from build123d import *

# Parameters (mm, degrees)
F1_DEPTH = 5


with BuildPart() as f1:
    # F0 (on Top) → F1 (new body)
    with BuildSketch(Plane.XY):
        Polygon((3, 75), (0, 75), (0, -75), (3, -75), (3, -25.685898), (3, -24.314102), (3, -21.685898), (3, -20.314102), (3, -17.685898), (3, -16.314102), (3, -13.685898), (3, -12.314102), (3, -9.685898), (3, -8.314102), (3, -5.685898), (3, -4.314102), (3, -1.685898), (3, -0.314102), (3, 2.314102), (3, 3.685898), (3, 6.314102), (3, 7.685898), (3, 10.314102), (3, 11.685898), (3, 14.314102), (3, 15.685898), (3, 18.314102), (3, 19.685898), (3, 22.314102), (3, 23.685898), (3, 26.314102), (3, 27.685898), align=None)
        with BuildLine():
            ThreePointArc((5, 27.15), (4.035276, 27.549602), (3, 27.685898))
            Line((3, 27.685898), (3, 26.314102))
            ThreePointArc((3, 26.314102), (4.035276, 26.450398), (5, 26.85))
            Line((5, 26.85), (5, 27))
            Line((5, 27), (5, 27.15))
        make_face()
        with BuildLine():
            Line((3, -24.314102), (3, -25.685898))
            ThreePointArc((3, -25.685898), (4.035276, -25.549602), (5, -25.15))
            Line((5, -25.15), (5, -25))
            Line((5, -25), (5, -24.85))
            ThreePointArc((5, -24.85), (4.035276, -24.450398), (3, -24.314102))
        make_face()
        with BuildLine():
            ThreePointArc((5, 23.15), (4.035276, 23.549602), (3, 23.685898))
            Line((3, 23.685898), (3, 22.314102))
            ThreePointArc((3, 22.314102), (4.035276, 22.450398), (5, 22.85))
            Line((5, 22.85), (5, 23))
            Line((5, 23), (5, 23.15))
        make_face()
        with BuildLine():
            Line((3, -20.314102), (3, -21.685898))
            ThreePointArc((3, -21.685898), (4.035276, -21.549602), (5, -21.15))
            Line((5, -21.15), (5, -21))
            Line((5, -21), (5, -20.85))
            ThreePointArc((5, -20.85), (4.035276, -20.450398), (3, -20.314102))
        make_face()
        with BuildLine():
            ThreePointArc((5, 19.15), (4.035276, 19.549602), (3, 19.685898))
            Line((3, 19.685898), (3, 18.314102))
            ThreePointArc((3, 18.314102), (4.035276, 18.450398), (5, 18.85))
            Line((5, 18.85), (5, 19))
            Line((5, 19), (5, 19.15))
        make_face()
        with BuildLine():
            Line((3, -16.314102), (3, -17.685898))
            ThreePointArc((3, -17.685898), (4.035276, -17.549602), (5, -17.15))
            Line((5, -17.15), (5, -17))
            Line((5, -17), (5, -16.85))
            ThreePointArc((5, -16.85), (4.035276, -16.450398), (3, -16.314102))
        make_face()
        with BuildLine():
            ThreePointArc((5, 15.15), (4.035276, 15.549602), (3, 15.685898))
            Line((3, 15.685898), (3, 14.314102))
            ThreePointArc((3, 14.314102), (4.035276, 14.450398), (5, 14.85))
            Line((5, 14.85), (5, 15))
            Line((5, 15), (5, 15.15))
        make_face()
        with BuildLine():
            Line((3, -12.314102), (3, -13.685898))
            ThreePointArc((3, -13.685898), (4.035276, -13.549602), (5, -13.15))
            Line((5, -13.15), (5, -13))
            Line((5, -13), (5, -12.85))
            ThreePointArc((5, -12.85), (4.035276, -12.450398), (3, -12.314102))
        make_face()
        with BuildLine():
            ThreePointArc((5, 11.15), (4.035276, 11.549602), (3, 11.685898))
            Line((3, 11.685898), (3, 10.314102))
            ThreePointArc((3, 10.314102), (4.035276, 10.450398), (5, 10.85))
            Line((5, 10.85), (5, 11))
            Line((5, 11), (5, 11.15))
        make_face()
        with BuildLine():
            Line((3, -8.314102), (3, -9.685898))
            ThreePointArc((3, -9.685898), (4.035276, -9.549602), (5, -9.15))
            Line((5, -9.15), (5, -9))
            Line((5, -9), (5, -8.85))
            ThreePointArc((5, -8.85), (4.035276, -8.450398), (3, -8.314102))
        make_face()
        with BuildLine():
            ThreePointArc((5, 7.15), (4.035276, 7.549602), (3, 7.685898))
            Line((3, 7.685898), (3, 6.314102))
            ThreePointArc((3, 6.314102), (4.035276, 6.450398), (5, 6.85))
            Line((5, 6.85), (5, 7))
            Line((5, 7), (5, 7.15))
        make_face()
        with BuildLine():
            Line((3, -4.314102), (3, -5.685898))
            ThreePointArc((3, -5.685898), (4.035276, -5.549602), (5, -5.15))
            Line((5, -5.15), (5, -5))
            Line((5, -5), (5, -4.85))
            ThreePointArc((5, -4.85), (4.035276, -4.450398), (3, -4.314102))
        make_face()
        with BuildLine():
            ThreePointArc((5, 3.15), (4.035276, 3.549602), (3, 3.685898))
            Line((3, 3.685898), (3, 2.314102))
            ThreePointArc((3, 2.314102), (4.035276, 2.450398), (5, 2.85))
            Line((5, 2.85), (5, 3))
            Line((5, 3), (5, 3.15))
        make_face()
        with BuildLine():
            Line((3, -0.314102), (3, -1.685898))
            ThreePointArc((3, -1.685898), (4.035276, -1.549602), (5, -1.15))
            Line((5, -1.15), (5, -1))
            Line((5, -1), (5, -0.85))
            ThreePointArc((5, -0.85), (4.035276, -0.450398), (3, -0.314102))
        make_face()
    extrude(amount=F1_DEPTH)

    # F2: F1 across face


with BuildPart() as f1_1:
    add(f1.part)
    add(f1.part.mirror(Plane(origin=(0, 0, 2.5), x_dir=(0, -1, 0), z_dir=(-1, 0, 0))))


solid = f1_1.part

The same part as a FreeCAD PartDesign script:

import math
import FreeCAD as App
import Part
import Sketcher

V = App.Vector

doc = App.newDocument("Part")
body = doc.addObject("PartDesign::Body", "Body")

sketch1 = body.newObject("Sketcher::SketchObject", "Sketch")
sketch1.AttachmentSupport = (doc.getObject("XY_Plane"), [""])
sketch1.MapMode = "FlatFace"
sketch1.addGeometry(Part.LineSegment(V(3, 75, 0), V(0, 75, 0)), False)
sketch1.addGeometry(Part.LineSegment(V(0, 75, 0), V(0, -75, 0)), False)
sketch1.addGeometry(Part.LineSegment(V(0, -75, 0), V(3, -75, 0)), False)
sketch1.addGeometry(Part.LineSegment(V(3, -75, 0), V(3, -25.685898, 0)), False)
sketch1.addGeometry(Part.ArcOfCircle(Part.Circle(V(3.000004, -21.685911, 0), V(0, 0, 1), 3.999987), math.radians(-90.000059), math.radians(-59.999962)), False)
sketch1.addGeometry(Part.LineSegment(V(5, -25.15, 0), V(5, -24.85, 0)), False)
sketch1.addGeometry(Part.ArcOfCircle(Part.Circle(V(3.000004, -28.314089, 0), V(0, 0, 1), 3.999987), math.radians(59.999962), math.radians(90.000059)), False)
sketch1.addGeometry(Part.LineSegment(V(3, -24.314102, 0), V(3, -21.685898, 0)), False)
sketch1.addGeometry(Part.ArcOfCircle(Part.Circle(V(3.000004, -17.685911, 0), V(0, 0, 1), 3.999987), math.radians(-90.000059), math.radians(-59.999962)), False)
sketch1.addGeometry(Part.LineSegment(V(5, -21.15, 0), V(5, -20.85, 0)), False)
sketch1.addGeometry(Part.ArcOfCircle(Part.Circle(V(3.000004, -24.314089, 0), V(0, 0, 1), 3.999987), math.radians(59.999962), math.radians(90.000059)), False)
sketch1.addGeometry(Part.LineSegment(V(3, -20.314102, 0), V(3, -17.685898, 0)), False)
sketch1.addGeometry(Part.ArcOfCircle(Part.Circle(V(3.000004, -13.685911, 0), V(0, 0, 1), 3.999987), math.radians(-90.000059), math.radians(-59.999962)), False)
sketch1.addGeometry(Part.LineSegment(V(5, -17.15, 0), V(5, -16.85, 0)), False)
sketch1.addGeometry(Part.ArcOfCircle(Part.Circle(V(3.000004, -20.314089, 0), V(0, 0, 1), 3.999987), math.radians(59.999962), math.radians(90.000059)), False)
sketch1.addGeometry(Part.LineSegment(V(3, -16.314102, 0), V(3, -13.685898, 0)), False)
sketch1.addGeometry(Part.ArcOfCircle(Part.Circle(V(3.000004, -9.685911, 0), V(0, 0, 1), 3.999987), math.radians(-90.000059), math.radians(-59.999962)), False)
sketch1.addGeometry(Part.LineSegment(V(5, -13.15, 0), V(5, -12.85, 0)), False)
sketch1.addGeometry(Part.ArcOfCircle(Part.Circle(V(3.000004, -16.314089, 0), V(0, 0, 1), 3.999987), math.radians(59.999962), math.radians(90.000059)), False)
sketch1.addGeometry(Part.LineSegment(V(3, -12.314102, 0), V(3, -9.685898, 0)), False)
sketch1.addGeometry(Part.ArcOfCircle(Part.Circle(V(3.000004, -5.685911, 0), V(0, 0, 1), 3.999987), math.radians(-90.000059), math.radians(-59.999962)), False)
sketch1.addGeometry(Part.LineSegment(V(5, -9.15, 0), V(5, -8.85, 0)), False)
sketch1.addGeometry(Part.ArcOfCircle(Part.Circle(V(3.000004, -12.314089, 0), V(0, 0, 1), 3.999987), math.radians(59.999962), math.radians(90.000059)), False)
sketch1.addGeometry(Part.LineSegment(V(3, -8.314102, 0), V(3, -5.685898, 0)), False)
sketch1.addGeometry(Part.ArcOfCircle(Part.Circle(V(3.000004, -1.685911, 0), V(0, 0, 1), 3.999987), math.radians(-90.000059), math.radians(-59.999962)), False)
sketch1.addGeometry(Part.LineSegment(V(5, -5.15, 0), V(5, -4.85, 0)), False)
sketch1.addGeometry(Part.ArcOfCircle(Part.Circle(V(3.000004, -8.314089, 0), V(0, 0, 1), 3.999987), math.radians(59.999962), math.radians(90.000059)), False)
sketch1.addGeometry(Part.LineSegment(V(3, -4.314102, 0), V(3, -1.685898, 0)), False)
sketch1.addGeometry(Part.ArcOfCircle(Part.Circle(V(3.000004, 2.314089, 0), V(0, 0, 1), 3.999987), math.radians(-90.000059), math.radians(-59.999962)), False)
sketch1.addGeometry(Part.LineSegment(V(5, -1.15, 0), V(5, -0.85, 0)), False)
sketch1.addGeometry(Part.ArcOfCircle(Part.Circle(V(3.000004, -4.314089, 0), V(0, 0, 1), 3.999987), math.radians(59.999962), math.radians(90.000059)), False)
sketch1.addGeometry(Part.LineSegment(V(3, -0.314102, 0), V(3, 2.314102, 0)), False)
sketch1.addGeometry(Part.ArcOfCircle(Part.Circle(V(3.000004, 6.314089, 0), V(0, 0, 1), 3.999987), math.radians(-90.000059), math.radians(-59.999962)), False)
sketch1.addGeometry(Part.LineSegment(V(5, 2.85, 0), V(5, 3.15, 0)), False)
sketch1.addGeometry(Part.ArcOfCircle(Part.Circle(V(3.000004, -0.314089, 0), V(0, 0, 1), 3.999987), math.radians(59.999962), math.radians(90.000059)), False)
sketch1.addGeometry(Part.LineSegment(V(3, 3.685898, 0), V(3, 6.314102, 0)), False)
sketch1.addGeometry(Part.ArcOfCircle(Part.Circle(V(3.000004, 10.314089, 0), V(0, 0, 1), 3.999987), math.radians(-90.000059), math.radians(-59.999962)), False)
sketch1.addGeometry(Part.LineSegment(V(5, 6.85, 0), V(5, 7.15, 0)), False)
sketch1.addGeometry(Part.ArcOfCircle(Part.Circle(V(3.000004, 3.685911, 0), V(0, 0, 1), 3.999987), math.radians(59.999962), math.radians(90.000059)), False)
sketch1.addGeometry(Part.LineSegment(V(3, 7.685898, 0), V(3, 10.314102, 0)), False)
sketch1.addGeometry(Part.ArcOfCircle(Part.Circle(V(3.000004, 14.314089, 0), V(0, 0, 1), 3.999987), math.radians(-90.000059), math.radians(-59.999962)), False)
sketch1.addGeometry(Part.LineSegment(V(5, 10.85, 0), V(5, 11.15, 0)), False)
sketch1.addGeometry(Part.ArcOfCircle(Part.Circle(V(3.000004, 7.685911, 0), V(0, 0, 1), 3.999987), math.radians(59.999962), math.radians(90.000059)), False)
sketch1.addGeometry(Part.LineSegment(V(3, 11.685898, 0), V(3, 14.314102, 0)), False)
sketch1.addGeometry(Part.ArcOfCircle(Part.Circle(V(3.000004, 18.314089, 0), V(0, 0, 1), 3.999987), math.radians(-90.000059), math.radians(-59.999962)), False)
sketch1.addGeometry(Part.LineSegment(V(5, 14.85, 0), V(5, 15.15, 0)), False)
sketch1.addGeometry(Part.ArcOfCircle(Part.Circle(V(3.000004, 11.685911, 0), V(0, 0, 1), 3.999987), math.radians(59.999962), math.radians(90.000059)), False)
sketch1.addGeometry(Part.LineSegment(V(3, 15.685898, 0), V(3, 18.314102, 0)), False)
sketch1.addGeometry(Part.ArcOfCircle(Part.Circle(V(3.000004, 22.314089, 0), V(0, 0, 1), 3.999987), math.radians(-90.000059), math.radians(-59.999962)), False)
sketch1.addGeometry(Part.LineSegment(V(5, 18.85, 0), V(5, 19.15, 0)), False)
sketch1.addGeometry(Part.ArcOfCircle(Part.Circle(V(3.000004, 15.685911, 0), V(0, 0, 1), 3.999987), math.radians(59.999962), math.radians(90.000059)), False)
sketch1.addGeometry(Part.LineSegment(V(3, 19.685898, 0), V(3, 22.314102, 0)), False)
sketch1.addGeometry(Part.ArcOfCircle(Part.Circle(V(3.000004, 26.314089, 0), V(0, 0, 1), 3.999987), math.radians(-90.000059), math.radians(-59.999962)), False)
sketch1.addGeometry(Part.LineSegment(V(5, 22.85, 0), V(5, 23.15, 0)), False)
sketch1.addGeometry(Part.ArcOfCircle(Part.Circle(V(3.000004, 19.685911, 0), V(0, 0, 1), 3.999987), math.radians(59.999962), math.radians(90.000059)), False)
sketch1.addGeometry(Part.LineSegment(V(3, 23.685898, 0), V(3, 26.314102, 0)), False)
sketch1.addGeometry(Part.ArcOfCircle(Part.Circle(V(3.000004, 30.314089, 0), V(0, 0, 1), 3.999987), math.radians(-90.000059), math.radians(-59.999962)), False)
sketch1.addGeometry(Part.LineSegment(V(5, 26.85, 0), V(5, 27.15, 0)), False)
sketch1.addGeometry(Part.ArcOfCircle(Part.Circle(V(3.000004, 23.685911, 0), V(0, 0, 1), 3.999987), math.radians(59.999962), math.radians(90.000059)), False)
sketch1.addGeometry(Part.LineSegment(V(3, 27.685898, 0), V(3, 75, 0)), False)
sketch1.addConstraint(Sketcher.Constraint("Coincident", 0, 2, 1, 1))
sketch1.addConstraint(Sketcher.Constraint("Coincident", 1, 2, 2, 1))
sketch1.addConstraint(Sketcher.Constraint("Coincident", 2, 2, 3, 1))
sketch1.addConstraint(Sketcher.Constraint("Coincident", 3, 2, 4, 1))
sketch1.addConstraint(Sketcher.Constraint("Coincident", 4, 2, 5, 1))
sketch1.addConstraint(Sketcher.Constraint("Coincident", 5, 2, 6, 1))
sketch1.addConstraint(Sketcher.Constraint("Coincident", 6, 2, 7, 1))
sketch1.addConstraint(Sketcher.Constraint("Coincident", 7, 2, 8, 1))
sketch1.addConstraint(Sketcher.Constraint("Coincident", 8, 2, 9, 1))
sketch1.addConstraint(Sketcher.Constraint("Coincident", 9, 2, 10, 1))
sketch1.addConstraint(Sketcher.Constraint("Coincident", 10, 2, 11, 1))
sketch1.addConstraint(Sketcher.Constraint("Coincident", 11, 2, 12, 1))
sketch1.addConstraint(Sketcher.Constraint("Coincident", 12, 2, 13, 1))
sketch1.addConstraint(Sketcher.Constraint("Coincident", 13, 2, 14, 1))
sketch1.addConstraint(Sketcher.Constraint("Coincident", 14, 2, 15, 1))
sketch1.addConstraint(Sketcher.Constraint("Coincident", 15, 2, 16, 1))
sketch1.addConstraint(Sketcher.Constraint("Coincident", 16, 2, 17, 1))
sketch1.addConstraint(Sketcher.Constraint("Coincident", 17, 2, 18, 1))
sketch1.addConstraint(Sketcher.Constraint("Coincident", 18, 2, 19, 1))
sketch1.addConstraint(Sketcher.Constraint("Coincident", 19, 2, 20, 1))
sketch1.addConstraint(Sketcher.Constraint("Coincident", 20, 2, 21, 1))
sketch1.addConstraint(Sketcher.Constraint("Coincident", 21, 2, 22, 1))
sketch1.addConstraint(Sketcher.Constraint("Coincident", 22, 2, 23, 1))
sketch1.addConstraint(Sketcher.Constraint("Coincident", 23, 2, 24, 1))
sketch1.addConstraint(Sketcher.Constraint("Coincident", 24, 2, 25, 1))
sketch1.addConstraint(Sketcher.Constraint("Coincident", 25, 2, 26, 1))
sketch1.addConstraint(Sketcher.Constraint("Coincident", 26, 2, 27, 1))
sketch1.addConstraint(Sketcher.Constraint("Coincident", 27, 2, 28, 1))
sketch1.addConstraint(Sketcher.Constraint("Coincident", 28, 2, 29, 1))
sketch1.addConstraint(Sketcher.Constraint("Coincident", 29, 2, 30, 1))
sketch1.addConstraint(Sketcher.Constraint("Coincident", 30, 2, 31, 1))
sketch1.addConstraint(Sketcher.Constraint("Coincident", 31, 2, 32, 1))
sketch1.addConstraint(Sketcher.Constraint("Coincident", 32, 2, 33, 1))
sketch1.addConstraint(Sketcher.Constraint("Coincident", 33, 2, 34, 1))
sketch1.addConstraint(Sketcher.Constraint("Coincident", 34, 2, 35, 1))
sketch1.addConstraint(Sketcher.Constraint("Coincident", 35, 2, 36, 1))
sketch1.addConstraint(Sketcher.Constraint("Coincident", 36, 2, 37, 1))
sketch1.addConstraint(Sketcher.Constraint("Coincident", 37, 2, 38, 1))
sketch1.addConstraint(Sketcher.Constraint("Coincident", 38, 2, 39, 1))
sketch1.addConstraint(Sketcher.Constraint("Coincident", 39, 2, 40, 1))
sketch1.addConstraint(Sketcher.Constraint("Coincident", 40, 2, 41, 1))
sketch1.addConstraint(Sketcher.Constraint("Coincident", 41, 2, 42, 1))
sketch1.addConstraint(Sketcher.Constraint("Coincident", 42, 2, 43, 1))
sketch1.addConstraint(Sketcher.Constraint("Coincident", 43, 2, 44, 1))
sketch1.addConstraint(Sketcher.Constraint("Coincident", 44, 2, 45, 1))
sketch1.addConstraint(Sketcher.Constraint("Coincident", 45, 2, 46, 1))
sketch1.addConstraint(Sketcher.Constraint("Coincident", 46, 2, 47, 1))
sketch1.addConstraint(Sketcher.Constraint("Coincident", 47, 2, 48, 1))
sketch1.addConstraint(Sketcher.Constraint("Coincident", 48, 2, 49, 1))
sketch1.addConstraint(Sketcher.Constraint("Coincident", 49, 2, 50, 1))
sketch1.addConstraint(Sketcher.Constraint("Coincident", 50, 2, 51, 1))
sketch1.addConstraint(Sketcher.Constraint("Coincident", 51, 2, 52, 1))
sketch1.addConstraint(Sketcher.Constraint("Coincident", 52, 2, 53, 1))
sketch1.addConstraint(Sketcher.Constraint("Coincident", 53, 2, 54, 1))
sketch1.addConstraint(Sketcher.Constraint("Coincident", 54, 2, 55, 1))
sketch1.addConstraint(Sketcher.Constraint("Coincident", 55, 2, 56, 1))
sketch1.addConstraint(Sketcher.Constraint("Coincident", 56, 2, 57, 1))
sketch1.addConstraint(Sketcher.Constraint("Coincident", 57, 2, 58, 1))
sketch1.addConstraint(Sketcher.Constraint("Coincident", 58, 2, 59, 1))
sketch1.addConstraint(Sketcher.Constraint("Coincident", 59, 2, 0, 1))
sketch1.addConstraint(Sketcher.Constraint("Horizontal", 0))
sketch1.addConstraint(Sketcher.Constraint("Vertical", 1))
sketch1.addConstraint(Sketcher.Constraint("Horizontal", 2))
sketch1.addConstraint(Sketcher.Constraint("Vertical", 3))
sketch1.addConstraint(Sketcher.Constraint("Vertical", 5))
sketch1.addConstraint(Sketcher.Constraint("Vertical", 7))
sketch1.addConstraint(Sketcher.Constraint("Vertical", 9))
sketch1.addConstraint(Sketcher.Constraint("Vertical", 11))
sketch1.addConstraint(Sketcher.Constraint("Vertical", 13))
sketch1.addConstraint(Sketcher.Constraint("Vertical", 15))
sketch1.addConstraint(Sketcher.Constraint("Vertical", 17))
sketch1.addConstraint(Sketcher.Constraint("Vertical", 19))
sketch1.addConstraint(Sketcher.Constraint("Vertical", 21))
sketch1.addConstraint(Sketcher.Constraint("Vertical", 23))
sketch1.addConstraint(Sketcher.Constraint("Vertical", 25))
sketch1.addConstraint(Sketcher.Constraint("Vertical", 27))
sketch1.addConstraint(Sketcher.Constraint("Vertical", 29))
sketch1.addConstraint(Sketcher.Constraint("Vertical", 31))
sketch1.addConstraint(Sketcher.Constraint("Vertical", 33))
sketch1.addConstraint(Sketcher.Constraint("Vertical", 35))
sketch1.addConstraint(Sketcher.Constraint("Vertical", 37))
sketch1.addConstraint(Sketcher.Constraint("Vertical", 39))
sketch1.addConstraint(Sketcher.Constraint("Vertical", 41))
sketch1.addConstraint(Sketcher.Constraint("Vertical", 43))
sketch1.addConstraint(Sketcher.Constraint("Vertical", 45))
sketch1.addConstraint(Sketcher.Constraint("Vertical", 47))
sketch1.addConstraint(Sketcher.Constraint("Vertical", 49))
sketch1.addConstraint(Sketcher.Constraint("Vertical", 51))
sketch1.addConstraint(Sketcher.Constraint("Vertical", 53))
sketch1.addConstraint(Sketcher.Constraint("Vertical", 55))
sketch1.addConstraint(Sketcher.Constraint("Vertical", 57))
sketch1.addConstraint(Sketcher.Constraint("Vertical", 59))
sketch1.addConstraint(Sketcher.Constraint("Equal", 4, 6))
sketch1.addConstraint(Sketcher.Constraint("Equal", 6, 8))
sketch1.addConstraint(Sketcher.Constraint("Equal", 8, 10))
sketch1.addConstraint(Sketcher.Constraint("Equal", 10, 12))
sketch1.addConstraint(Sketcher.Constraint("Equal", 12, 14))
sketch1.addConstraint(Sketcher.Constraint("Equal", 14, 16))
sketch1.addConstraint(Sketcher.Constraint("Equal", 16, 18))
sketch1.addConstraint(Sketcher.Constraint("Equal", 18, 20))
sketch1.addConstraint(Sketcher.Constraint("Equal", 20, 22))
sketch1.addConstraint(Sketcher.Constraint("Equal", 22, 24))
sketch1.addConstraint(Sketcher.Constraint("Equal", 24, 26))
sketch1.addConstraint(Sketcher.Constraint("Equal", 26, 28))
sketch1.addConstraint(Sketcher.Constraint("Equal", 28, 30))
sketch1.addConstraint(Sketcher.Constraint("Equal", 30, 32))
sketch1.addConstraint(Sketcher.Constraint("Equal", 32, 34))
sketch1.addConstraint(Sketcher.Constraint("Equal", 34, 36))
sketch1.addConstraint(Sketcher.Constraint("Equal", 36, 38))
sketch1.addConstraint(Sketcher.Constraint("Equal", 38, 40))
sketch1.addConstraint(Sketcher.Constraint("Equal", 40, 42))
sketch1.addConstraint(Sketcher.Constraint("Equal", 42, 44))
sketch1.addConstraint(Sketcher.Constraint("Equal", 44, 46))
sketch1.addConstraint(Sketcher.Constraint("Equal", 46, 48))
sketch1.addConstraint(Sketcher.Constraint("Equal", 48, 50))
sketch1.addConstraint(Sketcher.Constraint("Equal", 50, 52))
sketch1.addConstraint(Sketcher.Constraint("Equal", 52, 54))
sketch1.addConstraint(Sketcher.Constraint("Equal", 54, 56))
sketch1.addConstraint(Sketcher.Constraint("Equal", 56, 58))
sketch1.addConstraint(Sketcher.Constraint("Symmetric", 0, 2, 1, 2, -1, 1))
sketch1.addConstraint(Sketcher.Constraint("Vertical", 4, 3, 6, 3))
sketch1.addConstraint(Sketcher.Constraint("Vertical", 6, 3, 8, 3))
sketch1.addConstraint(Sketcher.Constraint("Vertical", 8, 3, 10, 3))
sketch1.addConstraint(Sketcher.Constraint("Vertical", 10, 3, 12, 3))
sketch1.addConstraint(Sketcher.Constraint("Vertical", 12, 3, 14, 3))
sketch1.addConstraint(Sketcher.Constraint("Vertical", 14, 3, 16, 3))
sketch1.addConstraint(Sketcher.Constraint("Vertical", 16, 3, 18, 3))
sketch1.addConstraint(Sketcher.Constraint("Vertical", 18, 3, 20, 3))
sketch1.addConstraint(Sketcher.Constraint("Vertical", 20, 3, 22, 3))
sketch1.addConstraint(Sketcher.Constraint("Vertical", 22, 3, 24, 3))
sketch1.addConstraint(Sketcher.Constraint("Vertical", 24, 3, 26, 3))
sketch1.addConstraint(Sketcher.Constraint("Vertical", 26, 3, 28, 3))
sketch1.addConstraint(Sketcher.Constraint("Vertical", 28, 3, 30, 3))
sketch1.addConstraint(Sketcher.Constraint("Vertical", 30, 3, 32, 3))
sketch1.addConstraint(Sketcher.Constraint("Vertical", 32, 3, 34, 3))
sketch1.addConstraint(Sketcher.Constraint("Vertical", 34, 3, 36, 3))
sketch1.addConstraint(Sketcher.Constraint("Vertical", 36, 3, 38, 3))
sketch1.addConstraint(Sketcher.Constraint("Vertical", 38, 3, 40, 3))
sketch1.addConstraint(Sketcher.Constraint("Vertical", 40, 3, 42, 3))
sketch1.addConstraint(Sketcher.Constraint("Vertical", 42, 3, 44, 3))
sketch1.addConstraint(Sketcher.Constraint("Vertical", 44, 3, 46, 3))
sketch1.addConstraint(Sketcher.Constraint("Vertical", 46, 3, 48, 3))
sketch1.addConstraint(Sketcher.Constraint("Vertical", 48, 3, 50, 3))
sketch1.addConstraint(Sketcher.Constraint("Vertical", 50, 3, 52, 3))
sketch1.addConstraint(Sketcher.Constraint("Vertical", 52, 3, 54, 3))
sketch1.addConstraint(Sketcher.Constraint("Vertical", 54, 3, 56, 3))
sketch1.addConstraint(Sketcher.Constraint("Vertical", 56, 3, 58, 3))
sketch1.addConstraint(Sketcher.Constraint("Vertical", 3, 2, 6, 2))
sketch1.addConstraint(Sketcher.Constraint("Vertical", 5, 2, 8, 2))
sketch1.addConstraint(Sketcher.Constraint("Vertical", 7, 2, 10, 2))
sketch1.addConstraint(Sketcher.Constraint("Vertical", 9, 2, 12, 2))
sketch1.addConstraint(Sketcher.Constraint("Vertical", 11, 2, 14, 2))
sketch1.addConstraint(Sketcher.Constraint("Vertical", 13, 2, 16, 2))
sketch1.addConstraint(Sketcher.Constraint("Vertical", 15, 2, 18, 2))
sketch1.addConstraint(Sketcher.Constraint("Vertical", 17, 2, 20, 2))
sketch1.addConstraint(Sketcher.Constraint("Vertical", 19, 2, 22, 2))
sketch1.addConstraint(Sketcher.Constraint("Vertical", 21, 2, 24, 2))
sketch1.addConstraint(Sketcher.Constraint("Vertical", 23, 2, 26, 2))
sketch1.addConstraint(Sketcher.Constraint("Vertical", 25, 2, 28, 2))
sketch1.addConstraint(Sketcher.Constraint("Vertical", 27, 2, 30, 2))
sketch1.addConstraint(Sketcher.Constraint("Vertical", 29, 2, 32, 2))
sketch1.addConstraint(Sketcher.Constraint("Vertical", 31, 2, 34, 2))
sketch1.addConstraint(Sketcher.Constraint("Vertical", 33, 2, 36, 2))
sketch1.addConstraint(Sketcher.Constraint("Vertical", 35, 2, 38, 2))
sketch1.addConstraint(Sketcher.Constraint("Vertical", 37, 2, 40, 2))
sketch1.addConstraint(Sketcher.Constraint("Vertical", 39, 2, 42, 2))
sketch1.addConstraint(Sketcher.Constraint("Vertical", 41, 2, 44, 2))
sketch1.addConstraint(Sketcher.Constraint("Vertical", 43, 2, 46, 2))
sketch1.addConstraint(Sketcher.Constraint("Vertical", 45, 2, 48, 2))
sketch1.addConstraint(Sketcher.Constraint("Vertical", 47, 2, 50, 2))
sketch1.addConstraint(Sketcher.Constraint("Vertical", 49, 2, 52, 2))
sketch1.addConstraint(Sketcher.Constraint("Vertical", 51, 2, 54, 2))
sketch1.addConstraint(Sketcher.Constraint("Vertical", 53, 2, 56, 2))
sketch1.addConstraint(Sketcher.Constraint("Vertical", 55, 2, 58, 2))
sketch1.addConstraint(Sketcher.Constraint("Equal", 5, 9))
sketch1.addConstraint(Sketcher.Constraint("Equal", 7, 11))
sketch1.addConstraint(Sketcher.Constraint("Equal", 9, 13))
sketch1.addConstraint(Sketcher.Constraint("Equal", 11, 15))
sketch1.addConstraint(Sketcher.Constraint("Equal", 13, 17))
sketch1.addConstraint(Sketcher.Constraint("Equal", 15, 19))
sketch1.addConstraint(Sketcher.Constraint("Equal", 17, 21))
sketch1.addConstraint(Sketcher.Constraint("Equal", 19, 23))
sketch1.addConstraint(Sketcher.Constraint("Equal", 21, 25))
sketch1.addConstraint(Sketcher.Constraint("Equal", 23, 27))
sketch1.addConstraint(Sketcher.Constraint("Equal", 25, 29))
sketch1.addConstraint(Sketcher.Constraint("Equal", 27, 31))
sketch1.addConstraint(Sketcher.Constraint("Equal", 29, 33))
sketch1.addConstraint(Sketcher.Constraint("Equal", 31, 35))
sketch1.addConstraint(Sketcher.Constraint("Equal", 33, 37))
sketch1.addConstraint(Sketcher.Constraint("Equal", 35, 39))
sketch1.addConstraint(Sketcher.Constraint("Equal", 37, 41))
sketch1.addConstraint(Sketcher.Constraint("Equal", 39, 43))
sketch1.addConstraint(Sketcher.Constraint("Equal", 41, 45))
sketch1.addConstraint(Sketcher.Constraint("Equal", 43, 47))
sketch1.addConstraint(Sketcher.Constraint("Equal", 45, 49))
sketch1.addConstraint(Sketcher.Constraint("Equal", 47, 51))
sketch1.addConstraint(Sketcher.Constraint("Equal", 49, 53))
sketch1.addConstraint(Sketcher.Constraint("Equal", 51, 55))
sketch1.addConstraint(Sketcher.Constraint("Equal", 53, 57))
sketch1.addConstraint(Sketcher.Constraint("DistanceX", 0, 2, 0, 1, 3.0))
sketch1.addConstraint(Sketcher.Constraint("DistanceY", 1, 2, 1, 1, 150.0))
sketch1.addConstraint(Sketcher.Constraint("DistanceY", 5, 1, 5, 2, 0.3))
sketch1.addConstraint(Sketcher.Constraint("DistanceX", -1, 1, 4, 2, 5.0))
sketch1.addConstraint(Sketcher.Constraint("DistanceY", 4, 2, -1, 1, 25.15))
sketch1.addConstraint(Sketcher.Constraint("DistanceY", 8, 2, -1, 1, 21.15))
sketch1.addConstraint(Sketcher.Constraint("DistanceY", 3, 1, 3, 2, 49.314102))
sketch1.addConstraint(Sketcher.Constraint("Radius", 4, 3.999987))
pad1 = body.newObject("PartDesign::Pad", "Pad")
pad1.Profile = sketch1
pad1.Length = 5
body2 = doc.addObject("PartDesign::Body", "Body001")
doc.recompute()

body2.BaseFeature = body
doc.recompute()

mirroring = doc.addObject("Part::Mirroring", "Mirroring")
mirroring.Source = body
mirroring.Base = V(0, 0, 2.5)
mirroring.Normal = V(-1, 0, 0)
body3 = doc.addObject("PartDesign::Body", "Body002")
body3.BaseFeature = mirroring
boolean = body2.newObject("PartDesign::Boolean", "Boolean")
boolean.Type = "Fuse"
boolean.addObjects([body3])
doc.recompute()
mirroring.Visibility = False

doc.recompute()
